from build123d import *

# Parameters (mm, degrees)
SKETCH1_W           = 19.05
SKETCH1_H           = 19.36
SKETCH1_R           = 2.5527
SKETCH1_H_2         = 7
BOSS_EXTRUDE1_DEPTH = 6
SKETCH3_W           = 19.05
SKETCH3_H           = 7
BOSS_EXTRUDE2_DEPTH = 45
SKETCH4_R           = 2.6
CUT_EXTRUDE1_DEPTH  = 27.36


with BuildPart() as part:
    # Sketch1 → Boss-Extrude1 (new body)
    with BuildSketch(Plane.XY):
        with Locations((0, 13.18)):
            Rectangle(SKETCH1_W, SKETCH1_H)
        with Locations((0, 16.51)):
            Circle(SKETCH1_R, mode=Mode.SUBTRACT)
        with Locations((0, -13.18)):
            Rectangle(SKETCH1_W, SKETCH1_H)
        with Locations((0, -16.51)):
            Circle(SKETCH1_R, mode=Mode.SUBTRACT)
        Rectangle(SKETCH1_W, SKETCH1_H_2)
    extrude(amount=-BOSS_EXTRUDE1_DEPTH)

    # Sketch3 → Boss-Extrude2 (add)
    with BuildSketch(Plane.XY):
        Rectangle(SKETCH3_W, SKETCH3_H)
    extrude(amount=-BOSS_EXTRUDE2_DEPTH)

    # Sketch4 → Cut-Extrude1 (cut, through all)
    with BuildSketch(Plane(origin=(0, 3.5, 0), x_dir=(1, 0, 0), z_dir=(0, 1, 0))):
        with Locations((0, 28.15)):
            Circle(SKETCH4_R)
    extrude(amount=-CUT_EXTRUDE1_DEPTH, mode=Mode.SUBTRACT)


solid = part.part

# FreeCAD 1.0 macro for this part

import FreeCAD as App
import Part
import Sketcher
from FreeCAD import Vector
Q = App.Units.Quantity


def add_polygon(sketch, points):
    """Adds a closed chain of lines whose ends are joined by coincident constraints."""
    first, n = sketch.GeometryCount, len(points)
    for a, b in zip(points, points[1:] + points[:1]):
        sketch.addGeometry(Part.LineSegment(App.Vector(*a, 0), App.Vector(*b, 0)), False)
    for i in range(n):
        sketch.addConstraint(Sketcher.Constraint("Coincident", first + i, 2, first + (i + 1) % n, 1))

doc = App.newDocument("Part")
body = doc.addObject("PartDesign::Body", "Body")

sketch1 = body.newObject("Sketcher::SketchObject", "Sketch")
sketch1.AttachmentSupport = (doc.getObject("XY_Plane"), [""])
sketch1.MapMode = "FlatFace"
add_polygon(sketch1, [(-9.5, 22.9), (-9.5, -22.9), (9.5, -22.9), (9.5, 22.9)])
sketch1.addGeometry(Part.Circle(Vector(0, 16.5, 0), Vector(0, 0, 1), 2.6), False)
sketch1.addGeometry(Part.Circle(Vector(0, -16.5, 0), Vector(0, 0, 1), 2.6), False)
sketch1.addConstraint([
    Sketcher.Constraint("Vertical", 0),
    Sketcher.Constraint("Horizontal", 1),
    Sketcher.Constraint("Vertical", 2),
    Sketcher.Constraint("Horizontal", 3),
    Sketcher.Constraint("Equal", 4, 5),
    Sketcher.Constraint("Symmetric", 4, 3, 5, 3, -1, 1),
    Sketcher.Constraint("Symmetric", 0, 2, 2, 2, -1, 1),
    Sketcher.Constraint("PointOnObject", 4, 3, -2),
    Sketcher.Constraint("Diameter", 4, Q("5.1054 mm")),
    Sketcher.Constraint("DistanceX", 1, 1, 1, 2, Q("19.05 mm")),
    Sketcher.Constraint("DistanceY", 0, 2, 0, 1, Q("45.72 mm")),
    Sketcher.Constraint("DistanceY", -1, 1, 4, 3, Q("16.51 mm")),
])
pad1 = body.newObject("PartDesign::Pad", "Pad")
pad1.Profile = sketch1
pad1.Length = 6
pad1.Reversed = True

sketch2 = body.newObject("Sketcher::SketchObject", "Sketch001")
sketch2.AttachmentSupport = (doc.getObject("XY_Plane"), [""])
sketch2.MapMode = "FlatFace"
add_polygon(sketch2, [(-10, 4), (-10, -4), (10, -4), (10, 4)])
sketch2.addConstraint([
    Sketcher.Constraint("Vertical", 0),
    Sketcher.Constraint("Horizontal", 1),
    Sketcher.Constraint("Vertical", 2),
    Sketcher.Constraint("Horizontal", 3),
    Sketcher.Constraint("Symmetric", 0, 2, 2, 2, -1, 1),
    Sketcher.Constraint("DistanceY", 0, 2, 0, 1, Q("7 mm")),
    Sketcher.Constraint("DistanceX", 1, 1, 1, 2, Q("19.05 mm")),
])
pad2 = body.newObject("PartDesign::Pad", "Pad001")
pad2.Profile = sketch2
pad2.Length = 45
pad2.Reversed = True

sketch3 = body.newObject("Sketcher::SketchObject", "Sketch002")
sketch3.AttachmentSupport = (doc.getObject("XZ_Plane"), [""])
sketch3.MapMode = "FlatFace"
sketch3.AttachmentOffset = App.Placement(Vector(0, 0, -3.5), App.Rotation())
sketch3.addGeometry(Part.Circle(Vector(0, -28.1, 0), Vector(0, 0, 1), 2.6), False)
sketch3.addConstraint([
    Sketcher.Constraint("PointOnObject", 0, 3, -2),
    Sketcher.Constraint("Diameter", 0, Q("5.2 mm")),
    Sketcher.Constraint("DistanceY", 0, 3, -1, 1, Q("28.15 mm")),
])
pocket1 = body.newObject("PartDesign::Pocket", "Pocket")
pocket1.Profile = sketch3
pocket1.Type = "ThroughAll"
pocket1.Reversed = True

doc.recompute()
